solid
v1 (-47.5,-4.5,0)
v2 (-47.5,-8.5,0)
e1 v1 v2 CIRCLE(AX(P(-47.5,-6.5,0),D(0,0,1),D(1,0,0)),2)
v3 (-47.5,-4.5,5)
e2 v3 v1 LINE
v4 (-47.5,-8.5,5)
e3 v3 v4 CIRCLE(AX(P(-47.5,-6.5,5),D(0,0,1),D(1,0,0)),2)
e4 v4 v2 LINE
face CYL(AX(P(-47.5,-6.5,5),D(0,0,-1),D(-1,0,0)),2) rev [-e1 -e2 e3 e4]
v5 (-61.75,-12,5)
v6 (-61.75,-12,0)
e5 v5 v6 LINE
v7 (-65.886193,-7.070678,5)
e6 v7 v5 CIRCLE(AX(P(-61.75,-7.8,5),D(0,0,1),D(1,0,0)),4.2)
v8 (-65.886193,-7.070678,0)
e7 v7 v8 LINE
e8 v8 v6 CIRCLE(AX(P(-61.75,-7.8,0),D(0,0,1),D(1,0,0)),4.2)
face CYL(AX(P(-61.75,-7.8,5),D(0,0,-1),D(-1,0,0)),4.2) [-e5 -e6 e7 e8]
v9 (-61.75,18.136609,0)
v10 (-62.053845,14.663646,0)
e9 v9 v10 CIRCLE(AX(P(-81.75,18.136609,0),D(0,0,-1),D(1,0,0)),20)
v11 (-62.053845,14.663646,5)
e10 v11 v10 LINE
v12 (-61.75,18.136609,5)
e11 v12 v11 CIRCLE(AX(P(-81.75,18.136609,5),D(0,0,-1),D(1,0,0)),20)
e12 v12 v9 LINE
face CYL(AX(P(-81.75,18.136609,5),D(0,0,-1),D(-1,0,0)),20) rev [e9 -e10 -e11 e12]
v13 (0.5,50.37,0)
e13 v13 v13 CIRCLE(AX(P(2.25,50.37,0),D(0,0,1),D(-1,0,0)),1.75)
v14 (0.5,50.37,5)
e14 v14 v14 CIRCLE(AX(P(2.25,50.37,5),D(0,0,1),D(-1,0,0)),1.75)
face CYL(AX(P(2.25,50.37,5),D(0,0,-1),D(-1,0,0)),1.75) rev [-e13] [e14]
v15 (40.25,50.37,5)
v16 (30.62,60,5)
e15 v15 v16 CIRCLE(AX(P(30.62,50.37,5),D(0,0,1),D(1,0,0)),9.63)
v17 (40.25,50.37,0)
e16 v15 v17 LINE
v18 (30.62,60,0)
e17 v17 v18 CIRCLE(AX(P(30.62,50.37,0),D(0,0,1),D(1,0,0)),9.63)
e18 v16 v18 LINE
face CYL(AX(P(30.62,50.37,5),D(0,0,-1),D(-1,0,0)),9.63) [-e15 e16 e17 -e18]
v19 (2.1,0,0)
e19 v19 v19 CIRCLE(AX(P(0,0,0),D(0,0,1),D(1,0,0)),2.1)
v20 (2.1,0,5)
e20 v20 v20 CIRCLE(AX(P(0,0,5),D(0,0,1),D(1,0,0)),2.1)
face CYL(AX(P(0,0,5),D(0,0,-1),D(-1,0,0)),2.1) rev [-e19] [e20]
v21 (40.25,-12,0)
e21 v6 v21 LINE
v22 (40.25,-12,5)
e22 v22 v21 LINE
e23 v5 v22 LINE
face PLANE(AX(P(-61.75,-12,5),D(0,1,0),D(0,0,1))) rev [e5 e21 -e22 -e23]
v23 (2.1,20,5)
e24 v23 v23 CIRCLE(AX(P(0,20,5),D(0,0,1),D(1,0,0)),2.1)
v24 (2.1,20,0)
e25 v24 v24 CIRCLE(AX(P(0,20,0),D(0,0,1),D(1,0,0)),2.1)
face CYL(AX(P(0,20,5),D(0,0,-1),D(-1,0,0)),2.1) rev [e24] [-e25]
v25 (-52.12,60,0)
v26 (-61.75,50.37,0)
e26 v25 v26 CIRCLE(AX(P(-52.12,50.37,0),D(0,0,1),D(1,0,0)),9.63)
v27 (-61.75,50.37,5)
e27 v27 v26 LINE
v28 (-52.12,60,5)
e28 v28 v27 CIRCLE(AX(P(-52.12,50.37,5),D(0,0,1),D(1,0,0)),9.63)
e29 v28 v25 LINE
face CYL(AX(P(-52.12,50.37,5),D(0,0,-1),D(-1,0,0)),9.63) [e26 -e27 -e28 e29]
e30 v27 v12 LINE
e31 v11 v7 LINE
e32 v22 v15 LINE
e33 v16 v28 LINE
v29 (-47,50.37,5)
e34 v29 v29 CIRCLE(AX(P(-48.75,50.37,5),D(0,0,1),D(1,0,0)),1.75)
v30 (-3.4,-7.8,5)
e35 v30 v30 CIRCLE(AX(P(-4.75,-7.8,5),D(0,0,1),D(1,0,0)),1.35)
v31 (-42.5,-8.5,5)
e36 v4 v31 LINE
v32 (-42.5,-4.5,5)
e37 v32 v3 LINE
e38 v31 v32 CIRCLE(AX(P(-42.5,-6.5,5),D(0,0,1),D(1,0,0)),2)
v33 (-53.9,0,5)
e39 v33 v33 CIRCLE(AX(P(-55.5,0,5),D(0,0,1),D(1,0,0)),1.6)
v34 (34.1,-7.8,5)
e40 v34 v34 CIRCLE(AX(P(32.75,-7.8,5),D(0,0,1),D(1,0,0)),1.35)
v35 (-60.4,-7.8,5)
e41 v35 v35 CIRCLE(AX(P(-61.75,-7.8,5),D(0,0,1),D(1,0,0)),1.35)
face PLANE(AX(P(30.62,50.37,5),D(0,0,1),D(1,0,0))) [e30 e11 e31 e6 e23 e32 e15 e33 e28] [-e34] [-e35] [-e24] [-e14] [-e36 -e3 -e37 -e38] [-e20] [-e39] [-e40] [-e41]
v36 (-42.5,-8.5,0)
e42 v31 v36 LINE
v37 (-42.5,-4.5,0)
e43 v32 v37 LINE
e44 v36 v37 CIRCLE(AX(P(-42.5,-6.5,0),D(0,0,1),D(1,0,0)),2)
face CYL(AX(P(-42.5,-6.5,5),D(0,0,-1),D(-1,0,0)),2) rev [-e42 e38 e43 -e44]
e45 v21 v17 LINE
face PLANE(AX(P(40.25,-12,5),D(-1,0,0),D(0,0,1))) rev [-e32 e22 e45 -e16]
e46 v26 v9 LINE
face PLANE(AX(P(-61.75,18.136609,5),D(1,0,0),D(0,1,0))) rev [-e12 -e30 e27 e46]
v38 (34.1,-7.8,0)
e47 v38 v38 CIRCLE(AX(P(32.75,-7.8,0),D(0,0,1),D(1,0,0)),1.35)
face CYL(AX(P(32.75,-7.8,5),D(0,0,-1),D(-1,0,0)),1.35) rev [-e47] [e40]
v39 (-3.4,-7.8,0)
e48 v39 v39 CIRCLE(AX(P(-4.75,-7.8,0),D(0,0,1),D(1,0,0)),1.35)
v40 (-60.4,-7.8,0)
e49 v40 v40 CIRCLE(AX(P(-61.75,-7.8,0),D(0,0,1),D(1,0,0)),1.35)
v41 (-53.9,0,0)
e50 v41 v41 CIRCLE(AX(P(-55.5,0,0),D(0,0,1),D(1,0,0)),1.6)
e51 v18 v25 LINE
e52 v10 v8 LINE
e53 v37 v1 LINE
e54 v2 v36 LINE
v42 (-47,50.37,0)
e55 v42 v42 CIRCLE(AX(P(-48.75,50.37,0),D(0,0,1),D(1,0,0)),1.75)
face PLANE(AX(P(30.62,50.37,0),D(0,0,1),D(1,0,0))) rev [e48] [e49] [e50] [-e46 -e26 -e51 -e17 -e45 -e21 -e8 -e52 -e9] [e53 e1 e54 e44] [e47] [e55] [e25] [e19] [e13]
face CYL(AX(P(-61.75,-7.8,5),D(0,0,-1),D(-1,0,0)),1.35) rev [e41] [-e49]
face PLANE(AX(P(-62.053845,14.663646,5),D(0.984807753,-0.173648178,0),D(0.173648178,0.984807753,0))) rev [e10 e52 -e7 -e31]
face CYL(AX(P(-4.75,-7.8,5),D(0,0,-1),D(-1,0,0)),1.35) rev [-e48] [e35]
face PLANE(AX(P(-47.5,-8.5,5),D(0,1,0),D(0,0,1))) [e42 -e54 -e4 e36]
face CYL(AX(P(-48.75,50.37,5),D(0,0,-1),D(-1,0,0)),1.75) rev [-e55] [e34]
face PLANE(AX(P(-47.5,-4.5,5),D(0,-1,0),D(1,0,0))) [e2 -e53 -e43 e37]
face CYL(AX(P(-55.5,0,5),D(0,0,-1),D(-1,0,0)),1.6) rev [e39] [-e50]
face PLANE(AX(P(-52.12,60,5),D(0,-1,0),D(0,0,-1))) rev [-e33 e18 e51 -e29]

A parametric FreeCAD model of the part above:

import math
import FreeCAD as App
import Part
import Sketcher
Q = App.Units.Quantity

doc = App.newDocument("Part")
body = doc.addObject("PartDesign::Body", "Body")

sketch1 = doc.addObject("Sketcher::SketchObject", "Sketch")
body.addObject(sketch1)
sketch1.AttachmentSupport = (doc.XY_Plane, [""])
sketch1.MapMode = "FlatFace"
sketch1.addGeometry([
    Part.LineSegment(App.Vector(-62.1, 14.7, 0), App.Vector(-65.9, -7.1, 0)),
    Part.ArcOfCircle(Part.Circle(App.Vector(-61.8, -7.8, 0), App.Vector(0, 0, 1), 4.2), math.radians(170), math.radians(270)),
    Part.LineSegment(App.Vector(-61.8, -12, 0), App.Vector(40.2, -12, 0)),
    Part.LineSegment(App.Vector(40.2, -12, 0), App.Vector(40.2, 50.4, 0)),
    Part.ArcOfCircle(Part.Circle(App.Vector(30.6, 50.4, 0), App.Vector(0, 0, 1), 9.6), math.radians(0), math.radians(90)),
    Part.LineSegment(App.Vector(30.6, 60, 0), App.Vector(-52.1, 60, 0)),
    Part.ArcOfCircle(Part.Circle(App.Vector(-52.1, 50.4, 0), App.Vector(0, 0, 1), 9.6), math.radians(90), math.radians(180)),
    Part.LineSegment(App.Vector(-61.8, 50.4, 0), App.Vector(-61.8, 18.1, 0)),
    Part.ArcOfCircle(Part.Circle(App.Vector(-81.7, 18.1, 0), App.Vector(0, 0, 1), 20), math.radians(-10), math.radians(0)),
    Part.Circle(App.Vector(-61.8, -7.8, 0), App.Vector(0, 0, 1), 1.4),
    Part.ArcOfCircle(Part.Circle(App.Vector(-47.5, -6.5, 0), App.Vector(0, 0, 1), 2), math.radians(90), math.radians(270)),
    Part.LineSegment(App.Vector(-47.5, -4.5, 0), App.Vector(-42.5, -4.5, 0)),
    Part.ArcOfCircle(Part.Circle(App.Vector(-42.5, -6.5, 0), App.Vector(0, 0, 1), 2), math.radians(-90), math.radians(90)),
    Part.LineSegment(App.Vector(-42.5, -8.5, 0), App.Vector(-47.5, -8.5, 0)),
    Part.Circle(App.Vector(-55.5, 0, 0), App.Vector(0, 0, 1), 1.6),
    Part.Circle(App.Vector(-4.8, -7.8, 0), App.Vector(0, 0, 1), 1.4),
    Part.Circle(App.Vector(0, 0, 0), App.Vector(0, 0, 1), 2.1),
    Part.Circle(App.Vector(32.8, -7.8, 0), App.Vector(0, 0, 1), 1.4),
    Part.Circle(App.Vector(0, 20, 0), App.Vector(0, 0, 1), 2.1),
    Part.Circle(App.Vector(-48.8, 50.4, 0), App.Vector(0, 0, 1), 1.8),
    Part.Circle(App.Vector(2.2, 50.4, 0), App.Vector(0, 0, 1), 1.8),
], False)
sketch1.addConstraint([
    Sketcher.Constraint("Tangent", 0, 2, 1, 1),
    Sketcher.Constraint("Tangent", 1, 2, 2, 1),
    Sketcher.Constraint("Coincident", 2, 2, 3, 1),
    Sketcher.Constraint("Tangent", 3, 2, 4, 1),
    Sketcher.Constraint("Tangent", 4, 2, 5, 1),
    Sketcher.Constraint("Tangent", 5, 2, 6, 1),
    Sketcher.Constraint("Tangent", 6, 2, 7, 1),
    Sketcher.Constraint("Tangent", 7, 2, 8, 2),
    Sketcher.Constraint("Tangent", 8, 1, 0, 1),
    Sketcher.Constraint("Tangent", 10, 1, 11, 1),
    Sketcher.Constraint("Tangent", 11, 2, 12, 2),
    Sketcher.Constraint("Tangent", 12, 1, 13, 1),
    Sketcher.Constraint("Tangent", 13, 2, 10, 2),
    Sketcher.Constraint("Horizontal", 2),
    Sketcher.Constraint("Vertical", 3),
    Sketcher.Constraint("Horizontal", 5),
    Sketcher.Constraint("Vertical", 7),
    Sketcher.Constraint("Horizontal", 11),
    Sketcher.Constraint("Horizontal", 13),
    Sketcher.Constraint("Coincident", 16, 3, -1, 1),
    Sketcher.Constraint("Coincident", 9, 3, 1, 3),
    Sketcher.Constraint("Equal", 4, 6),
    Sketcher.Constraint("Equal", 9, 15),
    Sketcher.Constraint("Equal", 15, 17),
    Sketcher.Constraint("Equal", 16, 18),
    Sketcher.Constraint("Equal", 19, 20),
    Sketcher.Constraint("PointOnObject", 14, 3, -1),
    Sketcher.Constraint("PointOnObject", 18, 3, -2),
    Sketcher.Constraint("Horizontal", 9, 3, 15, 3),
    Sketcher.Constraint("Horizontal", 15, 3, 17, 3),
    Sketcher.Constraint("Horizontal", 6, 3, 19, 3),
    Sketcher.Constraint("Horizontal", 19, 3, 20, 3),
    Sketcher.Constraint("Vertical", 1, 2, 6, 2),
    Sketcher.Constraint("Radius", 8, 20.0),
    Sketcher.Constraint("Radius", 10, 2.0),
    Sketcher.Constraint("Diameter", 9, 2.7),
    Sketcher.Constraint("Diameter", 14, 3.2),
    Sketcher.Constraint("Diameter", 16, 4.2),
    Sketcher.Constraint("Diameter", 19, 3.5),
    Sketcher.Constraint("Radius", 1, 4.2),
    Sketcher.Constraint("DistanceX", 2, 1, 2, 2, 102.0),
    Sketcher.Constraint("DistanceX", 11, 1, 11, 2, 5.0),
    Sketcher.Constraint("Angle", 0, Q("-100 deg")),
    Sketcher.Constraint("Radius", 4, 9.63),
    Sketcher.Constraint("DistanceY", -1, 1, 18, 3, 20.0),
    Sketcher.Constraint("DistanceY", 1, 2, -1, 1, 12.0),
    Sketcher.Constraint("DistanceY", -1, 1, 4, 2, 60.0),
    Sketcher.Constraint("DistanceX", 14, 3, 10, 3, 8.0),
    Sketcher.Constraint("DistanceX", 1, 3, 15, 3, 57.0),
    Sketcher.Constraint("DistanceX", 8, 3, 19, 3, 33.0),
    Sketcher.Constraint("DistanceX", 19, 3, 20, 3, 51.0),
    Sketcher.Constraint("DistanceX", 10, 3, -1, 1, 47.5),
    Sketcher.Constraint("DistanceY", 10, 3, -1, 1, 6.5),
    Sketcher.Constraint("DistanceX", 15, 3, 17, 3, 37.5),
    Sketcher.Constraint("DistanceX", 1, 3, -1, 1, 61.75),
])
pad1 = doc.addObject("PartDesign::Pad", "Pad")
body.addObject(pad1)
pad1.Profile = sketch1
pad1.Length = 5

doc.recompute()
